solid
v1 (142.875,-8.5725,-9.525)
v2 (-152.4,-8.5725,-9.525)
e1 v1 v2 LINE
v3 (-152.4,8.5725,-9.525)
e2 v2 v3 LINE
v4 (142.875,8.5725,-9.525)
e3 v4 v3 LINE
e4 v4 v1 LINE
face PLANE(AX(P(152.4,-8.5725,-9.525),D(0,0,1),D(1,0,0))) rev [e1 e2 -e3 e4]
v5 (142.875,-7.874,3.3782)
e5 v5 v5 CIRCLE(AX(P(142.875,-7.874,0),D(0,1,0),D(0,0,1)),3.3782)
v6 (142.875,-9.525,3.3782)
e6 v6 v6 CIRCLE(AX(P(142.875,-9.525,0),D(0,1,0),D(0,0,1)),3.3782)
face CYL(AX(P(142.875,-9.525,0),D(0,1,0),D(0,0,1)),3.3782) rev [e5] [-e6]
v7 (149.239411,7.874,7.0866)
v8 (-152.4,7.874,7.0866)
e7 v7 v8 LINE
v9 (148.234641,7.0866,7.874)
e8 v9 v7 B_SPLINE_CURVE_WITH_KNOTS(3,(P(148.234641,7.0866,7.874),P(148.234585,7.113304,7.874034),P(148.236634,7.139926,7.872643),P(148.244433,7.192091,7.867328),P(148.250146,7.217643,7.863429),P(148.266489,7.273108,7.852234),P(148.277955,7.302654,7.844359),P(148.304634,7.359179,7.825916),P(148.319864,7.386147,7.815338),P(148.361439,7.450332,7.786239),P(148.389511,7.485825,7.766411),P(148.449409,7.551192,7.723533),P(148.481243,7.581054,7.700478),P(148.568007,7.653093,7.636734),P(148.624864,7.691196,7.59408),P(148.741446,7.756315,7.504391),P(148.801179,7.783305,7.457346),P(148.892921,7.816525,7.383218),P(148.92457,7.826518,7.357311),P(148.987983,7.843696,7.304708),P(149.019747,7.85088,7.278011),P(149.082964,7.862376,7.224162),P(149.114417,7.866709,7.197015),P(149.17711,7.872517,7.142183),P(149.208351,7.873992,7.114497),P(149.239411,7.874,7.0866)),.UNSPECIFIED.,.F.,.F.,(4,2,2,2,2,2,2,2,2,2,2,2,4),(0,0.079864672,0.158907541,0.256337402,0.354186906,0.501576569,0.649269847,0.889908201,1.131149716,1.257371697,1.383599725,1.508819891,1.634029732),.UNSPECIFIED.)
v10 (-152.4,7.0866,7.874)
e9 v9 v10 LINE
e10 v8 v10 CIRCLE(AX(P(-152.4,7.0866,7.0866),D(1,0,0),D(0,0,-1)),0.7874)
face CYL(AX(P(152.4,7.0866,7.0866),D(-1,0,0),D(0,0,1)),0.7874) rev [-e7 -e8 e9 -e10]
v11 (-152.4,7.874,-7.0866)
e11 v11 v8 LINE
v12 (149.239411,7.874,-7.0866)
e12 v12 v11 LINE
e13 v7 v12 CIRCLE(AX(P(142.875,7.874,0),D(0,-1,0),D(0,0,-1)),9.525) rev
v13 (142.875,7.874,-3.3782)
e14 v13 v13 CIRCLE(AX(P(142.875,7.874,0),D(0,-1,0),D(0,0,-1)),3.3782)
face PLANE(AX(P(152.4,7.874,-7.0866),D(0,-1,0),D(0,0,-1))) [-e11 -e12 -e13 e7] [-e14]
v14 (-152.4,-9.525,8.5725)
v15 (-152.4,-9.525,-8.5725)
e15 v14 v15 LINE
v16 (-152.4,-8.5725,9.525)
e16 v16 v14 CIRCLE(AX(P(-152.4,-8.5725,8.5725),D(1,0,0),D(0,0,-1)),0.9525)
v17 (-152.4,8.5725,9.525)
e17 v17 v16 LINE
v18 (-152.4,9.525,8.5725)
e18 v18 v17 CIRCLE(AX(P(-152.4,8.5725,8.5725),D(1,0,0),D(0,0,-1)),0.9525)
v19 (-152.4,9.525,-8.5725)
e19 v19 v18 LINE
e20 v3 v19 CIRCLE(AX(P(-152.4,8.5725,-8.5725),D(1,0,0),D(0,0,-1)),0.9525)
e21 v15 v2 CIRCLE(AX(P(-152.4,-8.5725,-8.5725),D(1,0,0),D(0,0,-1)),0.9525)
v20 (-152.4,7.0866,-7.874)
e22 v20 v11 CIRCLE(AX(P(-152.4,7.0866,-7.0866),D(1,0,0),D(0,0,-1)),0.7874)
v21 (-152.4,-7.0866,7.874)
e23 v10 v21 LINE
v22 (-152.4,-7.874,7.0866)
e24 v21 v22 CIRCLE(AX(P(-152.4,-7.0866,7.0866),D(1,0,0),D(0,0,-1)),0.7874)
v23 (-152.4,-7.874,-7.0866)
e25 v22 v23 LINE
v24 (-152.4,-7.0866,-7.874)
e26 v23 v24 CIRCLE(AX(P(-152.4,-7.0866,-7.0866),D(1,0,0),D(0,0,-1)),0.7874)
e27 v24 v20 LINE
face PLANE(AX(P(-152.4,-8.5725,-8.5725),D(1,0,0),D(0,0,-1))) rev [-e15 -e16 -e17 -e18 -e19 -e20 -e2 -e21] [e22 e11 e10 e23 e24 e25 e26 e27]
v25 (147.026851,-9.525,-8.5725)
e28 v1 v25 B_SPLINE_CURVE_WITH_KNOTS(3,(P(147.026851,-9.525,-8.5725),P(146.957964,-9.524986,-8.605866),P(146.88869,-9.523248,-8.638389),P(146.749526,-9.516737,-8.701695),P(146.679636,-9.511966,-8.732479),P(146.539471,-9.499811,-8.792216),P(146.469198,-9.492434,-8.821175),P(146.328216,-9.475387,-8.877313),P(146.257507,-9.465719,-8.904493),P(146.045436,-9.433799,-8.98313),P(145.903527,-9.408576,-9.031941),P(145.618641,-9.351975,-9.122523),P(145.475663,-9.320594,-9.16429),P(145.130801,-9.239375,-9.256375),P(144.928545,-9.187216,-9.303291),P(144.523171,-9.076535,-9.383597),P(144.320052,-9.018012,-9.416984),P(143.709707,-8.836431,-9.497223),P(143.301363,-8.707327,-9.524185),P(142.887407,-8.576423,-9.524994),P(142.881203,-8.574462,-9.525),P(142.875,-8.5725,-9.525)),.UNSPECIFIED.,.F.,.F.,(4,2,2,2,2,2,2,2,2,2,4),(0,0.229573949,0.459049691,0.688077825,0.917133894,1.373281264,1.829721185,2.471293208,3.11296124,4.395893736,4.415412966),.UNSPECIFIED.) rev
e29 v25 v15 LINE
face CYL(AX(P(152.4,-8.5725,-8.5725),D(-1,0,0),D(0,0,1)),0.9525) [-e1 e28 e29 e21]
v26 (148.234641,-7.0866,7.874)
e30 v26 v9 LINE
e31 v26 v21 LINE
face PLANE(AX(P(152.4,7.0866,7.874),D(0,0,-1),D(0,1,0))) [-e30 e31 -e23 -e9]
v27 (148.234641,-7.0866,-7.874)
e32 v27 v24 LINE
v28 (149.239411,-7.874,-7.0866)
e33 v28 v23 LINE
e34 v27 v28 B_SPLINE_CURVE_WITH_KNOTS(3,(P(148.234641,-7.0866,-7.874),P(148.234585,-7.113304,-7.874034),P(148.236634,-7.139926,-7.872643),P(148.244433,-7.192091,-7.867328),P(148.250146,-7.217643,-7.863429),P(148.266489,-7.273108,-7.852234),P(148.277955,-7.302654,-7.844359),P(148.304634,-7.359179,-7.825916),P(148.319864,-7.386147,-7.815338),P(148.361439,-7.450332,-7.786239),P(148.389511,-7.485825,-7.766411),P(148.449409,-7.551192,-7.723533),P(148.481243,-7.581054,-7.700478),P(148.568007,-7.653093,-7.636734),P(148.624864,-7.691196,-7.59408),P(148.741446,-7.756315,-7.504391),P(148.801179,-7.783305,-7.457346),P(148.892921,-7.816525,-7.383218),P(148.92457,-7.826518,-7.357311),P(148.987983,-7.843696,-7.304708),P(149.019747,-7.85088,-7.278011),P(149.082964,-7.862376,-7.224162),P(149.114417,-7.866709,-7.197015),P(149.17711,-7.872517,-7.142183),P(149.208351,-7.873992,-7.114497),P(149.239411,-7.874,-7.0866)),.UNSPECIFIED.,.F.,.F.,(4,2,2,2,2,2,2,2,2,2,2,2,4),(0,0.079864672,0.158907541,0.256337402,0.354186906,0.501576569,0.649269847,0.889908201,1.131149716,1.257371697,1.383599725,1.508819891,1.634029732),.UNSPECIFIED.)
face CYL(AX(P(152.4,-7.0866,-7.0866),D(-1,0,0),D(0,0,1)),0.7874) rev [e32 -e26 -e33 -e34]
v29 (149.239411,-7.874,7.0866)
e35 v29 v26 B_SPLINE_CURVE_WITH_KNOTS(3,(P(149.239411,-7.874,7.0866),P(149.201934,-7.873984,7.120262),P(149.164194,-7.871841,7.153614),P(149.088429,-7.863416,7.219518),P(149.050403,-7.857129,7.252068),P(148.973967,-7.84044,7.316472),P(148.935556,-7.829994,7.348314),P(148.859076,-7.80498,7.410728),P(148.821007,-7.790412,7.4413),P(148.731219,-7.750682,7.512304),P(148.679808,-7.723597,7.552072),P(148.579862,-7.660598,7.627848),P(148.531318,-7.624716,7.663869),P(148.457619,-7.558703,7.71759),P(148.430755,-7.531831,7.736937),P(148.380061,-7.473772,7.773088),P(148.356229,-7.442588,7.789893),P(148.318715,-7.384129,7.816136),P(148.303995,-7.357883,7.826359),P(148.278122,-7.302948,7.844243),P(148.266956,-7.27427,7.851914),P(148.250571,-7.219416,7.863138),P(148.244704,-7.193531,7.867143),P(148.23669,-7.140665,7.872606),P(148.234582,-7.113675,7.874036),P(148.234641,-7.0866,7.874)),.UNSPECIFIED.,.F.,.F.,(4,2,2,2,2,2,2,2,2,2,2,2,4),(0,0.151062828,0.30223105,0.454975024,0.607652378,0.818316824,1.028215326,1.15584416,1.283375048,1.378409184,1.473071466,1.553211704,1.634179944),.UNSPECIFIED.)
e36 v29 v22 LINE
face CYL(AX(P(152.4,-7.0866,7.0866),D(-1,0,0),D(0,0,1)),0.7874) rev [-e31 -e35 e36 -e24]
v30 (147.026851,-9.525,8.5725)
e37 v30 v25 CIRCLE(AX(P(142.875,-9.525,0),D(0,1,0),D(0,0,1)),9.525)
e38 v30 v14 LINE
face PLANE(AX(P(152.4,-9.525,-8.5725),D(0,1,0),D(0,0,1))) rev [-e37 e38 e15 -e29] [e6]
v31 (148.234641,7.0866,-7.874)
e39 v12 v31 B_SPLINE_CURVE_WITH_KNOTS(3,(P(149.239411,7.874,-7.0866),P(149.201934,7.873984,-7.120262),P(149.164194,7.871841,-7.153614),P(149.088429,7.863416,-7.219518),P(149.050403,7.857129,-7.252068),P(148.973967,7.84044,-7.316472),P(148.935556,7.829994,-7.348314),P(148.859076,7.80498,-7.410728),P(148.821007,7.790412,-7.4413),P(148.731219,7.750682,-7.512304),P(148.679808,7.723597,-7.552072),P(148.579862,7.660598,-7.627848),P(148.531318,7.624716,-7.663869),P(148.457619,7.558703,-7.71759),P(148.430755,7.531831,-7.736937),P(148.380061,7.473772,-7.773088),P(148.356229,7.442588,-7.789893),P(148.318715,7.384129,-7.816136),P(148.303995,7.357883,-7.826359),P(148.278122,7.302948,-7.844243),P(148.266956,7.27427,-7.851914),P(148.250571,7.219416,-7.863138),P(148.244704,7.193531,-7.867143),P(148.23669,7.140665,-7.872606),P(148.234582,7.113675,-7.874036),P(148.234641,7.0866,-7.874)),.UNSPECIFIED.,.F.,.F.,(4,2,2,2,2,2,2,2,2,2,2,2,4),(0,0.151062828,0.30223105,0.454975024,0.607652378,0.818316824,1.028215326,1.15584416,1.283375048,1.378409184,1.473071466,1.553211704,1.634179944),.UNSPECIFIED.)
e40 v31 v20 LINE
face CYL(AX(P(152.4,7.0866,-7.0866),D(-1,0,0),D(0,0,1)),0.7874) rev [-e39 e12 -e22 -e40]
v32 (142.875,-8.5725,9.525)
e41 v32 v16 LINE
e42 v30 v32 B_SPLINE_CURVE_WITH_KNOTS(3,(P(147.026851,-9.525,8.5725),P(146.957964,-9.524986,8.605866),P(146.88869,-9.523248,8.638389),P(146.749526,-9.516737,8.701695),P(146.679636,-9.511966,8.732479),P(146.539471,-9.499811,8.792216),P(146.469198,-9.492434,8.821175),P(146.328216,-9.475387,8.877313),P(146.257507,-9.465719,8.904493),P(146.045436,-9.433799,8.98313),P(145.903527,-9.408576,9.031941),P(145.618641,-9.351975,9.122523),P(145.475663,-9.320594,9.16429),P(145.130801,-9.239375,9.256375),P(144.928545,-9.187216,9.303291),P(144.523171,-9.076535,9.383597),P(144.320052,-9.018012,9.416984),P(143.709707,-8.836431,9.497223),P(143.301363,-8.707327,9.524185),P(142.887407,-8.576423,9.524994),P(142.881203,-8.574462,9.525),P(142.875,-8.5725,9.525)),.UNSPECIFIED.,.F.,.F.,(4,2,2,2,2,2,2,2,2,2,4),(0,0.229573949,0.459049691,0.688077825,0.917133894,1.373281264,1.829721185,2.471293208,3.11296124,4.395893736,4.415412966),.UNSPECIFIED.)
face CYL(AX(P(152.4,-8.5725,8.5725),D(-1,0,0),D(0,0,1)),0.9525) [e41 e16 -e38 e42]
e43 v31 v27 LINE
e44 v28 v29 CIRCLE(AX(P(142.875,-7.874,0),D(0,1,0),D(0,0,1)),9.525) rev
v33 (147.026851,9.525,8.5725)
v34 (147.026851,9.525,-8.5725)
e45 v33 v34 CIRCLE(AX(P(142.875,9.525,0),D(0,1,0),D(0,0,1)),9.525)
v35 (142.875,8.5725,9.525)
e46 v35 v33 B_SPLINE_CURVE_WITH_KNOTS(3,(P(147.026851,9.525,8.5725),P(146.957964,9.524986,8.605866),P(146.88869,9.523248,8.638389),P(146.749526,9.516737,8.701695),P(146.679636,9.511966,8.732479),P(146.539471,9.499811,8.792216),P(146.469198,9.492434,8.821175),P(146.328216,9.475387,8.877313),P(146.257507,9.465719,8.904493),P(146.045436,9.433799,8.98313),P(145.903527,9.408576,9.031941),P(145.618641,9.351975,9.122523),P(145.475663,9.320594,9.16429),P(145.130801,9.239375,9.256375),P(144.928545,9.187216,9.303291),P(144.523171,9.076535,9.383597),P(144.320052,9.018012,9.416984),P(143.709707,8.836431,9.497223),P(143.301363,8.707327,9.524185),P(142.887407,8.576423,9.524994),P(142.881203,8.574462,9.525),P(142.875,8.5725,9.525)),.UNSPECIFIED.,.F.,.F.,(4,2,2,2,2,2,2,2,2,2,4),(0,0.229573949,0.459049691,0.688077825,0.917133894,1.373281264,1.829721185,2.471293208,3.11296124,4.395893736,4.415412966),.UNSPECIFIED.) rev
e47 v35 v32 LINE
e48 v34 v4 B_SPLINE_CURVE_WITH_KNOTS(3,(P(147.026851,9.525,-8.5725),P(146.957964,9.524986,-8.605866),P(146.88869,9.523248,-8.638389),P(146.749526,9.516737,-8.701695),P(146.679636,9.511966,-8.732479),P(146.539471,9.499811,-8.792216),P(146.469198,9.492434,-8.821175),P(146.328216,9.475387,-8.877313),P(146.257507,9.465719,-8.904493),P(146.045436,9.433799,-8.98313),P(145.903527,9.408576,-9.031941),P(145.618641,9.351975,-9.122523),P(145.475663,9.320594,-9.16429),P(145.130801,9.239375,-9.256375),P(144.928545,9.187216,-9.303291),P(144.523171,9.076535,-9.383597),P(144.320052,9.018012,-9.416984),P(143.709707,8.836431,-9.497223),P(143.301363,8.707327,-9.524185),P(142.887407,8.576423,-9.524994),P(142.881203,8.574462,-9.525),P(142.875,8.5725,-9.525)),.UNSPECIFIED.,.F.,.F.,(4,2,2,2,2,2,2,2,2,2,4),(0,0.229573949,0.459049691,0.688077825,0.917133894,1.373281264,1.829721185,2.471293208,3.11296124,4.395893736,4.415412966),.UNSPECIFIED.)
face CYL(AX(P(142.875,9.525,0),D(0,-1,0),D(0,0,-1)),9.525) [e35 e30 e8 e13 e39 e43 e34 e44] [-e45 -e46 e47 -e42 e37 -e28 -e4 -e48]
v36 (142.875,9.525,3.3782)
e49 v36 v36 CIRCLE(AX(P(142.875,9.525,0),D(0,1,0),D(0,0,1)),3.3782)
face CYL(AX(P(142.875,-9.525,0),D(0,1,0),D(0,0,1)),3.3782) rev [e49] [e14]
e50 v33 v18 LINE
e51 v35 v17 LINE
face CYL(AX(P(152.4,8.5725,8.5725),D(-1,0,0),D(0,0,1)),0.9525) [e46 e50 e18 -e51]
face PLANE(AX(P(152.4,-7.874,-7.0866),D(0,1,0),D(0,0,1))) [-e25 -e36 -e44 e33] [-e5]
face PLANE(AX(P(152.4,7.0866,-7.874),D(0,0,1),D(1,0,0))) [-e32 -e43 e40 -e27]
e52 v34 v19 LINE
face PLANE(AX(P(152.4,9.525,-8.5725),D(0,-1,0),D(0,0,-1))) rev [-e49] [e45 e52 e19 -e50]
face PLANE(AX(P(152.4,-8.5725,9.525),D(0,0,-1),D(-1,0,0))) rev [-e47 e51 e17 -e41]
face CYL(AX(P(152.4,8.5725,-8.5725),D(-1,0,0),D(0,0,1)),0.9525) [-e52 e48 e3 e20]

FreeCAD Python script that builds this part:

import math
import FreeCAD as App
import Part
import Sketcher
from FreeCAD import Vector
Q = App.Units.Quantity

doc = App.newDocument("Part")
body = doc.addObject("PartDesign::Body", "Body")

# Sketch on YZ plane
sketch1 = body.newObject("Sketcher::SketchObject", "Sketch")
sketch1.AttachmentSupport = (doc.getObject("YZ_Plane"), [""])
sketch1.MapMode = "FlatFace"
sketch1.addGeometry(Part.LineSegment(Vector(-8.6, -9.5, 0), Vector(8.6, -9.5, 0)), False)
sketch1.addGeometry(Part.ArcOfCircle(Part.Circle(Vector(8.6, -8.6, 0), Vector(0, 0, 1), 1), math.radians(-90), math.radians(0)), False)
sketch1.addGeometry(Part.LineSegment(Vector(9.5, -8.6, 0), Vector(9.5, 8.6, 0)), False)
sketch1.addGeometry(Part.ArcOfCircle(Part.Circle(Vector(8.6, 8.6, 0), Vector(0, 0, 1), 1), math.radians(0), math.radians(90)), False)
sketch1.addGeometry(Part.LineSegment(Vector(8.6, 9.5, 0), Vector(-8.6, 9.5, 0)), False)
sketch1.addGeometry(Part.ArcOfCircle(Part.Circle(Vector(-8.6, 8.6, 0), Vector(0, 0, 1), 1), math.radians(90), math.radians(180)), False)
sketch1.addGeometry(Part.LineSegment(Vector(-9.5, 8.6, 0), Vector(-9.5, -8.6, 0)), False)
sketch1.addGeometry(Part.ArcOfCircle(Part.Circle(Vector(-8.6, -8.6, 0), Vector(0, 0, 1), 1), math.radians(180), math.radians(270)), False)
sketch1.addGeometry(Part.ArcOfCircle(Part.Circle(Vector(7.1, -7.1, 0), Vector(0, 0, 1), 0.8), math.radians(-90), math.radians(0)), False)
sketch1.addGeometry(Part.LineSegment(Vector(7.1, -7.9, 0), Vector(-7.1, -7.9, 0)), False)
sketch1.addGeometry(Part.ArcOfCircle(Part.Circle(Vector(-7.1, -7.1, 0), Vector(0, 0, 1), 0.8), math.radians(180), math.radians(270)), False)
sketch1.addGeometry(Part.LineSegment(Vector(-7.9, -7.1, 0), Vector(-7.9, 7.1, 0)), False)
sketch1.addGeometry(Part.ArcOfCircle(Part.Circle(Vector(-7.1, 7.1, 0), Vector(0, 0, 1), 0.8), math.radians(90), math.radians(180)), False)
sketch1.addGeometry(Part.LineSegment(Vector(-7.1, 7.9, 0), Vector(7.1, 7.9, 0)), False)
sketch1.addGeometry(Part.ArcOfCircle(Part.Circle(Vector(7.1, 7.1, 0), Vector(0, 0, 1), 0.8), math.radians(0), math.radians(90)), False)
sketch1.addGeometry(Part.LineSegment(Vector(7.9, 7.1, 0), Vector(7.9, -7.1, 0)), False)
sketch1.addConstraint(Sketcher.Constraint("Tangent", 0, 2, 1, 1))
sketch1.addConstraint(Sketcher.Constraint("Tangent", 1, 2, 2, 1))
sketch1.addConstraint(Sketcher.Constraint("Tangent", 2, 2, 3, 1))
sketch1.addConstraint(Sketcher.Constraint("Tangent", 3, 2, 4, 1))
sketch1.addConstraint(Sketcher.Constraint("Tangent", 4, 2, 5, 1))
sketch1.addConstraint(Sketcher.Constraint("Tangent", 5, 2, 6, 1))
sketch1.addConstraint(Sketcher.Constraint("Tangent", 6, 2, 7, 1))
sketch1.addConstraint(Sketcher.Constraint("Tangent", 7, 2, 0, 1))
sketch1.addConstraint(Sketcher.Constraint("Tangent", 8, 1, 9, 1))
sketch1.addConstraint(Sketcher.Constraint("Tangent", 9, 2, 10, 2))
sketch1.addConstraint(Sketcher.Constraint("Tangent", 10, 1, 11, 1))
sketch1.addConstraint(Sketcher.Constraint("Tangent", 11, 2, 12, 2))
sketch1.addConstraint(Sketcher.Constraint("Tangent", 12, 1, 13, 1))
sketch1.addConstraint(Sketcher.Constraint("Tangent", 13, 2, 14, 2))
sketch1.addConstraint(Sketcher.Constraint("Tangent", 14, 1, 15, 1))
sketch1.addConstraint(Sketcher.Constraint("Tangent", 15, 2, 8, 2))
sketch1.addConstraint(Sketcher.Constraint("Horizontal", 0))
sketch1.addConstraint(Sketcher.Constraint("Vertical", 2))
sketch1.addConstraint(Sketcher.Constraint("Horizontal", 4))
sketch1.addConstraint(Sketcher.Constraint("Vertical", 6))
sketch1.addConstraint(Sketcher.Constraint("Horizontal", 9))
sketch1.addConstraint(Sketcher.Constraint("Vertical", 11))
sketch1.addConstraint(Sketcher.Constraint("Horizontal", 13))
sketch1.addConstraint(Sketcher.Constraint("Vertical", 15))
sketch1.addConstraint(Sketcher.Constraint("Equal", 1, 3))
sketch1.addConstraint(Sketcher.Constraint("Equal", 3, 5))
sketch1.addConstraint(Sketcher.Constraint("Equal", 5, 7))
sketch1.addConstraint(Sketcher.Constraint("Equal", 8, 10))
sketch1.addConstraint(Sketcher.Constraint("Equal", 10, 12))
sketch1.addConstraint(Sketcher.Constraint("Equal", 12, 14))
sketch1.addConstraint(Sketcher.Constraint("Symmetric", 1, 3, 5, 3, -1, 1))
sketch1.addConstraint(Sketcher.Constraint("Symmetric", 8, 3, 12, 3, -1, 1))
sketch1.addConstraint(Sketcher.Constraint("Equal", 4, 2))
sketch1.addConstraint(Sketcher.Constraint("Equal", 13, 11))
sketch1.addConstraint(Sketcher.Constraint("Radius", 8, Q("0.031 in")))
sketch1.addConstraint(Sketcher.Constraint("Radius", 1, Q("0.0375 in")))
sketch1.addConstraint(Sketcher.Constraint("DistanceX", 0, 1, 0, 2, Q("0.675 in")))
sketch1.addConstraint(Sketcher.Constraint("DistanceX", 9, 2, 9, 1, Q("0.558 in")))
pad1 = body.newObject("PartDesign::Pad", "Pad")
pad1.Profile = sketch1
pad1.Type = "TwoLengths"
pad1.Length = Q("6 in")
pad1.Length2 = Q("6 in")

# Sketch on XZ plane
sketch2 = body.newObject("Sketcher::SketchObject", "Sketch001")
sketch2.AttachmentSupport = (doc.getObject("XZ_Plane"), [""])
sketch2.MapMode = "FlatFace"
sketch2.AttachmentOffset = App.Placement(Vector(0, 0, 0.375 * 25.4), App.Rotation())
sketch2.addGeometry(Part.ArcOfCircle(Part.Circle(Vector(143, 0, 0), Vector(0, 0, 1), 10), math.radians(-90), math.radians(90)), False)
sketch2.addGeometry(Part.LineSegment(Vector(143, -10, 0), Vector(157, -10, 0)), False)
sketch2.addGeometry(Part.LineSegment(Vector(157, -10, 0), Vector(157, 10, 0)), False)
sketch2.addGeometry(Part.LineSegment(Vector(157, 10, 0), Vector(143, 10, 0)), False)
sketch2.addConstraint(Sketcher.Constraint("Tangent", 0, 1, 1, 1))
sketch2.addConstraint(Sketcher.Constraint("Coincident", 1, 2, 2, 1))
sketch2.addConstraint(Sketcher.Constraint("Coincident", 2, 2, 3, 1))
sketch2.addConstraint(Sketcher.Constraint("Tangent", 3, 2, 0, 2))
sketch2.addConstraint(Sketcher.Constraint("Horizontal", 1))
sketch2.addConstraint(Sketcher.Constraint("Vertical", 2))
sketch2.addConstraint(Sketcher.Constraint("Horizontal", 3))
sketch2.addConstraint(Sketcher.Constraint("PointOnObject", 0, 3, -1))
sketch2.addConstraint(Sketcher.Constraint("Radius", 0, Q("0.375 in")))
sketch2.addConstraint(Sketcher.Constraint("DistanceX", -1, 1, 1, 2, Q("6.2 in")))
sketch2.addConstraint(Sketcher.Constraint("DistanceX", 1, 1, 1, 2, Q("0.575 in")))
pocket1 = body.newObject("PartDesign::Pocket", "Pocket")
pocket1.Profile = sketch2
pocket1.Type = "ThroughAll"

# Sketch on XZ plane
sketch3 = body.newObject("Sketcher::SketchObject", "Sketch002")
sketch3.AttachmentSupport = (doc.getObject("XZ_Plane"), [""])
sketch3.MapMode = "FlatFace"
sketch3.AttachmentOffset = App.Placement(Vector(0, 0, -0.375 * 25.4), App.Rotation())
sketch3.addGeometry(Part.Circle(Vector(142.9, 0, 0), Vector(0, 0, 1), 3.4), False)
sketch3.addConstraint(Sketcher.Constraint("PointOnObject", 0, 3, -1))
sketch3.addConstraint(Sketcher.Constraint("Diameter", 0, Q("0.266 in")))
sketch3.addConstraint(Sketcher.Constraint("DistanceX", -1, 1, 0, 3, Q("5.625 in")))
pocket2 = body.newObject("PartDesign::Pocket", "Pocket001")
pocket2.Profile = sketch3
pocket2.Type = "ThroughAll"
pocket2.Reversed = True

doc.recompute()
